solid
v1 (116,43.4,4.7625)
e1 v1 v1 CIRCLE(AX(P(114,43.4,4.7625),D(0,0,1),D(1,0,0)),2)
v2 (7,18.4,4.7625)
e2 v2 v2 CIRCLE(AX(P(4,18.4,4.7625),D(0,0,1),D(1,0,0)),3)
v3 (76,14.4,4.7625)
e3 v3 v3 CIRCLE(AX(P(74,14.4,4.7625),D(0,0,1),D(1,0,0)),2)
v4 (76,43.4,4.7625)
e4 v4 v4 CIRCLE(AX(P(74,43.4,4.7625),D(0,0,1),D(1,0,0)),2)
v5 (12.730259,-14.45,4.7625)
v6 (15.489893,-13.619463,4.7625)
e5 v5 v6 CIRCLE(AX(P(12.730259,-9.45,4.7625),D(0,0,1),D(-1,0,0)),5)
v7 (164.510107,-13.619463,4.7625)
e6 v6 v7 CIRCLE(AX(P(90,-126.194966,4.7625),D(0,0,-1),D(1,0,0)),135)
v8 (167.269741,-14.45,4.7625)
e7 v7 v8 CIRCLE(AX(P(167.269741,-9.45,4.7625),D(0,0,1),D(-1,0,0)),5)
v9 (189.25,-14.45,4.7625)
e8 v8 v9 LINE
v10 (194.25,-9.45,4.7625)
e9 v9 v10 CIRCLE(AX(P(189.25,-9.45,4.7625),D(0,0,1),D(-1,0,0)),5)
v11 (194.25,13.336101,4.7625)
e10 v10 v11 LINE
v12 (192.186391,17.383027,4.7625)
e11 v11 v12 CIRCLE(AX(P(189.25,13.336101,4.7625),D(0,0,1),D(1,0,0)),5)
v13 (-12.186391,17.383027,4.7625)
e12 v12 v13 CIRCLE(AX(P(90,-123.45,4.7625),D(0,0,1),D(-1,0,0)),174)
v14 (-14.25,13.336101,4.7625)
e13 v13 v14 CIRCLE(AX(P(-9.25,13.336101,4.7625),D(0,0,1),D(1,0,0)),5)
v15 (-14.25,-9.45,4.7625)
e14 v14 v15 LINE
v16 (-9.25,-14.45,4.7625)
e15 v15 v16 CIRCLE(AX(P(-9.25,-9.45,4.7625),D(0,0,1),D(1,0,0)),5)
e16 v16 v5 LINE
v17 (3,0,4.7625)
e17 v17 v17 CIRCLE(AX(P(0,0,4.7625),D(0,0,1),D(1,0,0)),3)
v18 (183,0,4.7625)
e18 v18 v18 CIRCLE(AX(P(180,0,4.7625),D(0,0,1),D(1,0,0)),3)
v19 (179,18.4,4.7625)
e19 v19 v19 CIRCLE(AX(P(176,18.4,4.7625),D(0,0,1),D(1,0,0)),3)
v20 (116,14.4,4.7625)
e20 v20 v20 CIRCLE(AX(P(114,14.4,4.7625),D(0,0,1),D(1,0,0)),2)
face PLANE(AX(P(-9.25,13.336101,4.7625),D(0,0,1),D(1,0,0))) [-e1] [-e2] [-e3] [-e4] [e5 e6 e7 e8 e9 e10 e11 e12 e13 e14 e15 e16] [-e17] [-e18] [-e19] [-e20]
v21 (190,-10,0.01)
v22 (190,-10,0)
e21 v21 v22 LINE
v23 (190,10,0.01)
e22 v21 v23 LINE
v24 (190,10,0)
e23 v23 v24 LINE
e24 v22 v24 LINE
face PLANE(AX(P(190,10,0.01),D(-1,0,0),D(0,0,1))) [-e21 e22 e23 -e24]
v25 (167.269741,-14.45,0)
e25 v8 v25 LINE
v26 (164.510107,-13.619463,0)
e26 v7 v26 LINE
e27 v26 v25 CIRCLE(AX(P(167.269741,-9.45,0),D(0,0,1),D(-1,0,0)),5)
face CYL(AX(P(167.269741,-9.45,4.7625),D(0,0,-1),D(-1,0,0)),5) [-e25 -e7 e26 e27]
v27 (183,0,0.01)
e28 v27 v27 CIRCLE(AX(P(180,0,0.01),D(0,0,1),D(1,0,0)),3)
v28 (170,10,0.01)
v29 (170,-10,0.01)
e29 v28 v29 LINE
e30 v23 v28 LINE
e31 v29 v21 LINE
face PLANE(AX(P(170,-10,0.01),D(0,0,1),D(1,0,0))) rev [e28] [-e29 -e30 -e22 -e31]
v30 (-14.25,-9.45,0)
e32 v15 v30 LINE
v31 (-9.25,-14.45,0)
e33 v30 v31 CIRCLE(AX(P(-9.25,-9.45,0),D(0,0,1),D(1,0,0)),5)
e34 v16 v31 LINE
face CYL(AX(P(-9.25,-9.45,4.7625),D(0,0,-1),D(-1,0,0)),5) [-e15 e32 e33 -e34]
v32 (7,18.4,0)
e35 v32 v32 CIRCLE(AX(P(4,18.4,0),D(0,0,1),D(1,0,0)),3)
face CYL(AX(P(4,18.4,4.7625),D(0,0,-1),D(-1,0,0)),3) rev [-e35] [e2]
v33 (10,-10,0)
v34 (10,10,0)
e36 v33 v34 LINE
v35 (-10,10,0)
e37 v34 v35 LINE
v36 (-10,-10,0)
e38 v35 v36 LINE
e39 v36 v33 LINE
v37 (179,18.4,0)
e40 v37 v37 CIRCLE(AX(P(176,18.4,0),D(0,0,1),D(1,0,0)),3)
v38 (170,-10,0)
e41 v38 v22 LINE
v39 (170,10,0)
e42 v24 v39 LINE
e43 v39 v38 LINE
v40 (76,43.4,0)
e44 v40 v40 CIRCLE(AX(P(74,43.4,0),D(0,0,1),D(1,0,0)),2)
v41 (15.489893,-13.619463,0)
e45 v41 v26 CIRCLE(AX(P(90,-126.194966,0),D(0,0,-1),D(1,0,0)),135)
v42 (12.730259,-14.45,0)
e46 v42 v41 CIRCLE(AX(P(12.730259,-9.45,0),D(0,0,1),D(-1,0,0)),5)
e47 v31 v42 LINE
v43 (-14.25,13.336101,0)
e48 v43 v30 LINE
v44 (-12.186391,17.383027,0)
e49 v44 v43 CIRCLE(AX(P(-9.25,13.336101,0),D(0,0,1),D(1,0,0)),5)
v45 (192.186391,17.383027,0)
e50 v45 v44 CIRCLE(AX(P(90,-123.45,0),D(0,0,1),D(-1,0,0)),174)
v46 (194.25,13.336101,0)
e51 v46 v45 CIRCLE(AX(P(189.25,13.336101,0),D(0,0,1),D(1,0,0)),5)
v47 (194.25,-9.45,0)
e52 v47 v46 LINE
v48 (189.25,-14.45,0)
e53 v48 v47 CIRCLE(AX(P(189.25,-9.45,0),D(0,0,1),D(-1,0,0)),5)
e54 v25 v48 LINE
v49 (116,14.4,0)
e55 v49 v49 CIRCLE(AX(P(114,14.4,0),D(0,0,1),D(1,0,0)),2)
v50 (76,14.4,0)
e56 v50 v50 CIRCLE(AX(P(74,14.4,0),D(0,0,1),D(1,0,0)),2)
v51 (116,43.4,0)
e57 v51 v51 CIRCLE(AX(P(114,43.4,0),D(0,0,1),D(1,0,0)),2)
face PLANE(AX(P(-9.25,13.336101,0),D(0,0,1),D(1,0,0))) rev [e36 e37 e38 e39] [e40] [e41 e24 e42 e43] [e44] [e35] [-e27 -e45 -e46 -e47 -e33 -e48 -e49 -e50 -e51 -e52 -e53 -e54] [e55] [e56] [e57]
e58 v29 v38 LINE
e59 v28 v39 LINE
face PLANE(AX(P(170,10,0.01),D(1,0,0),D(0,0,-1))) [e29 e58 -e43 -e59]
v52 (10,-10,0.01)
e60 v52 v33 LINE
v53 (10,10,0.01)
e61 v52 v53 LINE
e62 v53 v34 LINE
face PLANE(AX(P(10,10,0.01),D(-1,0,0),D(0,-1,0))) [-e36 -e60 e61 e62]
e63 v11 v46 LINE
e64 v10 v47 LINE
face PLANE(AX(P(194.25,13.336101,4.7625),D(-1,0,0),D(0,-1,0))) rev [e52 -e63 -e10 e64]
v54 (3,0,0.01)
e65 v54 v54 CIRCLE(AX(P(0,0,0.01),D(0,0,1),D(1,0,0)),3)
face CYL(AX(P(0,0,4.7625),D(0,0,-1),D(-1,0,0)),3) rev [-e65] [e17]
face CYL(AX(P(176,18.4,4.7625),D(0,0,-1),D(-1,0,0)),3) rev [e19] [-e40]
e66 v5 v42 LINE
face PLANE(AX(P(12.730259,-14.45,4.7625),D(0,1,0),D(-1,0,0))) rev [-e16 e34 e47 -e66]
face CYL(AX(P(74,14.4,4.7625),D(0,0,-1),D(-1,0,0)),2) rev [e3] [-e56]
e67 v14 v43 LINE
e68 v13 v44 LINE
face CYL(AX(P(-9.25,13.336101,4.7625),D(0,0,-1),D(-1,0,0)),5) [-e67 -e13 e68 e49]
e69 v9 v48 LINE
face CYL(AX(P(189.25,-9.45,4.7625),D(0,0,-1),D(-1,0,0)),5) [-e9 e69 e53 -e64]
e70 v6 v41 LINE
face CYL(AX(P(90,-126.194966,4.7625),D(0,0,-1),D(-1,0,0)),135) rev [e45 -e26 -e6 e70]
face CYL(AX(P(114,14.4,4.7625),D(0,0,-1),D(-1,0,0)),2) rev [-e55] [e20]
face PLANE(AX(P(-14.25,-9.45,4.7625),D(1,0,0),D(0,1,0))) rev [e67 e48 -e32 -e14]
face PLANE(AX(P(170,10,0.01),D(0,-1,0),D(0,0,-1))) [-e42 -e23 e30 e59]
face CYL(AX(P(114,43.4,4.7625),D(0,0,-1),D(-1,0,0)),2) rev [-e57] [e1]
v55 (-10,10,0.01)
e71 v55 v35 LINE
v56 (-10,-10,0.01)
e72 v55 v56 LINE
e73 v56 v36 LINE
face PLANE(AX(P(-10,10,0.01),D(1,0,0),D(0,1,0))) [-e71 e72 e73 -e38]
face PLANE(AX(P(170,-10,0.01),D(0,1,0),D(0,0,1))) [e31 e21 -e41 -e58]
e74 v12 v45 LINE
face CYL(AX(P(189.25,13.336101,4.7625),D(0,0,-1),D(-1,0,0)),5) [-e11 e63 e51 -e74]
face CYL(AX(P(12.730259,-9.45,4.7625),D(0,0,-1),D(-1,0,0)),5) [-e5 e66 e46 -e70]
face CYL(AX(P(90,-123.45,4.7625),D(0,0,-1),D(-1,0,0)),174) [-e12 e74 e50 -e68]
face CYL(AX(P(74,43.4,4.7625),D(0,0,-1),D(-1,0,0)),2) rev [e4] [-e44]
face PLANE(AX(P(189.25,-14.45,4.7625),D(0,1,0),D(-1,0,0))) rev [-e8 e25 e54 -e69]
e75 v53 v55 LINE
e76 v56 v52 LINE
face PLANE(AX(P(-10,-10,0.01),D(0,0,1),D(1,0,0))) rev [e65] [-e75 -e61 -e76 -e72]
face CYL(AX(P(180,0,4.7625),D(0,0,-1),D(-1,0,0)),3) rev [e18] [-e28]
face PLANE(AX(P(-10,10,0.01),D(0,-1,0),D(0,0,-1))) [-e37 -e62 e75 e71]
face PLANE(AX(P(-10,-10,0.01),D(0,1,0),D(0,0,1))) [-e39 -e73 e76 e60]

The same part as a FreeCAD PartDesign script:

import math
import FreeCAD as App
import Part
import Sketcher
Q = App.Units.Quantity

doc = App.newDocument("Part")
body = doc.addObject("PartDesign::Body", "Body")

# Sketch on XY plane
sketch1 = doc.addObject("Sketcher::SketchObject", "Sketch")
body.addObject(sketch1)
sketch1.AttachmentSupport = (doc.XY_Plane, [""])
sketch1.MapMode = "FlatFace"
sketch1.addGeometry(Part.LineSegment(App.Vector(-14.2, 13.3, 0), App.Vector(-14.2, -9.4, 0)), False)
sketch1.addGeometry(Part.ArcOfCircle(Part.Circle(App.Vector(-9.2, -9.4, 0), App.Vector(0, 0, 1), 5), math.radians(180), math.radians(270)), False)
sketch1.addGeometry(Part.LineSegment(App.Vector(-9.2, -14.4, 0), App.Vector(12.7, -14.4, 0)), False)
sketch1.addGeometry(Part.ArcOfCircle(Part.Circle(App.Vector(12.7, -9.5, 0), App.Vector(0, 0, 1), 5), math.radians(-90), math.radians(-57)), False)
sketch1.addGeometry(Part.ArcOfCircle(Part.Circle(App.Vector(90, -126.2, 0), App.Vector(0, 0, 1), 135), math.radians(57), math.radians(123)), False)
sketch1.addGeometry(Part.ArcOfCircle(Part.Circle(App.Vector(167.3, -9.5, 0), App.Vector(0, 0, 1), 5), math.radians(-123), math.radians(-90)), False)
sketch1.addGeometry(Part.LineSegment(App.Vector(167.3, -14.4, 0), App.Vector(189.2, -14.4, 0)), False)
sketch1.addGeometry(Part.ArcOfCircle(Part.Circle(App.Vector(189.2, -9.4, 0), App.Vector(0, 0, 1), 5), math.radians(-90), math.radians(0)), False)
sketch1.addGeometry(Part.LineSegment(App.Vector(194.2, -9.4, 0), App.Vector(194.2, 13.3, 0)), False)
sketch1.addGeometry(Part.ArcOfCircle(Part.Circle(App.Vector(189.2, 13.3, 0), App.Vector(0, 0, 1), 5), math.radians(0), math.radians(54)), False)
sketch1.addGeometry(Part.ArcOfCircle(Part.Circle(App.Vector(90, -123.5, 0), App.Vector(0, 0, 1), 174), math.radians(54), math.radians(126)), False)
sketch1.addGeometry(Part.ArcOfCircle(Part.Circle(App.Vector(-9.2, 13.3, 0), App.Vector(0, 0, 1), 5), math.radians(126), math.radians(180)), False)
sketch1.addGeometry(Part.Circle(App.Vector(180, 0, 0), App.Vector(0, 0, 1), 3), False)
sketch1.addGeometry(Part.Circle(App.Vector(176, 18.4, 0), App.Vector(0, 0, 1), 3), False)
sketch1.addGeometry(Part.Circle(App.Vector(114, 14.4, 0), App.Vector(0, 0, 1), 2), False)
sketch1.addGeometry(Part.Circle(App.Vector(0, 0, 0), App.Vector(0, 0, 1), 3), False)
sketch1.addGeometry(Part.Circle(App.Vector(74, 14.4, 0), App.Vector(0, 0, 1), 2), False)
sketch1.addGeometry(Part.Circle(App.Vector(4, 18.4, 0), App.Vector(0, 0, 1), 3), False)
sketch1.addGeometry(Part.Circle(App.Vector(114, 43.4, 0), App.Vector(0, 0, 1), 2), False)
sketch1.addGeometry(Part.Circle(App.Vector(74, 43.4, 0), App.Vector(0, 0, 1), 2), False)
sketch1.addConstraint(Sketcher.Constraint("Tangent", 0, 2, 1, 1))
sketch1.addConstraint(Sketcher.Constraint("Tangent", 1, 2, 2, 1))
sketch1.addConstraint(Sketcher.Constraint("Tangent", 2, 2, 3, 1))
sketch1.addConstraint(Sketcher.Constraint("Tangent", 3, 2, 4, 2))
sketch1.addConstraint(Sketcher.Constraint("Tangent", 4, 1, 5, 1))
sketch1.addConstraint(Sketcher.Constraint("Tangent", 5, 2, 6, 1))
sketch1.addConstraint(Sketcher.Constraint("Tangent", 6, 2, 7, 1))
sketch1.addConstraint(Sketcher.Constraint("Tangent", 7, 2, 8, 1))
sketch1.addConstraint(Sketcher.Constraint("Tangent", 8, 2, 9, 1))
sketch1.addConstraint(Sketcher.Constraint("Tangent", 9, 2, 10, 1))
sketch1.addConstraint(Sketcher.Constraint("Tangent", 10, 2, 11, 1))
sketch1.addConstraint(Sketcher.Constraint("Tangent", 11, 2, 0, 1))
sketch1.addConstraint(Sketcher.Constraint("Vertical", 0))
sketch1.addConstraint(Sketcher.Constraint("Horizontal", 2))
sketch1.addConstraint(Sketcher.Constraint("Horizontal", 6))
sketch1.addConstraint(Sketcher.Constraint("Vertical", 8))
sketch1.addConstraint(Sketcher.Constraint("Coincident", 15, 3, -1, 1))
sketch1.addConstraint(Sketcher.Constraint("Equal", 1, 3))
sketch1.addConstraint(Sketcher.Constraint("Equal", 3, 5))
sketch1.addConstraint(Sketcher.Constraint("Equal", 5, 7))
sketch1.addConstraint(Sketcher.Constraint("Equal", 7, 9))
sketch1.addConstraint(Sketcher.Constraint("Equal", 9, 11))
sketch1.addConstraint(Sketcher.Constraint("Equal", 12, 13))
sketch1.addConstraint(Sketcher.Constraint("Equal", 13, 15))
sketch1.addConstraint(Sketcher.Constraint("Equal", 14, 16))
sketch1.addConstraint(Sketcher.Constraint("Equal", 15, 17))
sketch1.addConstraint(Sketcher.Constraint("Equal", 16, 18))
sketch1.addConstraint(Sketcher.Constraint("Equal", 18, 19))
sketch1.addConstraint(Sketcher.Constraint("PointOnObject", 12, 3, -1))
sketch1.addConstraint(Sketcher.Constraint("Horizontal", 3, 3, 5, 3))
sketch1.addConstraint(Sketcher.Constraint("Horizontal", 9, 3, 11, 3))
sketch1.addConstraint(Sketcher.Constraint("Horizontal", 14, 3, 16, 3))
sketch1.addConstraint(Sketcher.Constraint("Horizontal", 13, 3, 17, 3))
sketch1.addConstraint(Sketcher.Constraint("Horizontal", 18, 3, 19, 3))
sketch1.addConstraint(Sketcher.Constraint("Vertical", 4, 3, 10, 3))
sketch1.addConstraint(Sketcher.Constraint("Vertical", 14, 3, 18, 3))
sketch1.addConstraint(Sketcher.Constraint("Vertical", 16, 3, 19, 3))
sketch1.addConstraint(Sketcher.Constraint("Diameter", 12, Q("6 mm")))
sketch1.addConstraint(Sketcher.Constraint("Diameter", 14, Q("4 mm")))
sketch1.addConstraint(Sketcher.Constraint("Radius", 1, Q("5 mm")))
sketch1.addConstraint(Sketcher.Constraint("Radius", 4, Q("135 mm")))
sketch1.addConstraint(Sketcher.Constraint("Radius", 10, Q("174 mm")))
sketch1.addConstraint(Sketcher.Constraint("DistanceX", -1, 1, 4, 3, Q("90 mm")))
sketch1.addConstraint(Sketcher.Constraint("DistanceX", -1, 1, 12, 3, Q("180 mm")))
sketch1.addConstraint(Sketcher.Constraint("DistanceX", -1, 1, 13, 3, Q("176 mm")))
sketch1.addConstraint(Sketcher.Constraint("DistanceX", -1, 1, 14, 3, Q("114 mm")))
sketch1.addConstraint(Sketcher.Constraint("DistanceX", -1, 1, 16, 3, Q("74 mm")))
sketch1.addConstraint(Sketcher.Constraint("DistanceX", -1, 1, 17, 3, Q("4 mm")))
sketch1.addConstraint(Sketcher.Constraint("DistanceY", 10, 3, 3, 3, Q("114 mm")))
sketch1.addConstraint(Sketcher.Constraint("DistanceY", 14, 3, 13, 3, Q("4 mm")))
sketch1.addConstraint(Sketcher.Constraint("DistanceY", 14, 3, 18, 3, Q("29 mm")))
sketch1.addConstraint(Sketcher.Constraint("DistanceY", -1, 1, 13, 3, Q("18.4 mm")))
sketch1.addConstraint(Sketcher.Constraint("DistanceX", 1, 3, 7, 3, Q("198.5 mm")))
sketch1.addConstraint(Sketcher.Constraint("DistanceY", 1, 3, -1, 1, Q("9.45 mm")))
sketch1.addConstraint(Sketcher.Constraint("DistanceX", 2, 1, 2, 2, Q("21.980259 mm")))
pad1 = doc.addObject("PartDesign::Pad", "Pad")
body.addObject(pad1)
pad1.Profile = sketch1
pad1.Length = 4.7625

# Sketch on XY plane
sketch2 = doc.addObject("Sketcher::SketchObject", "Sketch001")
body.addObject(sketch2)
sketch2.AttachmentSupport = (doc.XY_Plane, [""])
sketch2.MapMode = "FlatFace"
sketch2.addGeometry(Part.LineSegment(App.Vector(-10, 10, 0), App.Vector(-10, -10, 0)), False)
sketch2.addGeometry(Part.LineSegment(App.Vector(-10, -10, 0), App.Vector(10, -10, 0)), False)
sketch2.addGeometry(Part.LineSegment(App.Vector(10, -10, 0), App.Vector(10, 10, 0)), False)
sketch2.addGeometry(Part.LineSegment(App.Vector(10, 10, 0), App.Vector(-10, 10, 0)), False)
sketch2.addGeometry(Part.LineSegment(App.Vector(170, 10, 0), App.Vector(170, -10, 0)), False)
sketch2.addGeometry(Part.LineSegment(App.Vector(170, -10, 0), App.Vector(190, -10, 0)), False)
sketch2.addGeometry(Part.LineSegment(App.Vector(190, -10, 0), App.Vector(190, 10, 0)), False)
sketch2.addGeometry(Part.LineSegment(App.Vector(190, 10, 0), App.Vector(170, 10, 0)), False)
sketch2.addConstraint(Sketcher.Constraint("Coincident", 0, 2, 1, 1))
sketch2.addConstraint(Sketcher.Constraint("Coincident", 1, 2, 2, 1))
sketch2.addConstraint(Sketcher.Constraint("Coincident", 2, 2, 3, 1))
sketch2.addConstraint(Sketcher.Constraint("Coincident", 3, 2, 0, 1))
sketch2.addConstraint(Sketcher.Constraint("Coincident", 4, 2, 5, 1))
sketch2.addConstraint(Sketcher.Constraint("Coincident", 5, 2, 6, 1))
sketch2.addConstraint(Sketcher.Constraint("Coincident", 6, 2, 7, 1))
sketch2.addConstraint(Sketcher.Constraint("Coincident", 7, 2, 4, 1))
sketch2.addConstraint(Sketcher.Constraint("Vertical", 0))
sketch2.addConstraint(Sketcher.Constraint("Horizontal", 1))
sketch2.addConstraint(Sketcher.Constraint("Vertical", 2))
sketch2.addConstraint(Sketcher.Constraint("Horizontal", 3))
sketch2.addConstraint(Sketcher.Constraint("Vertical", 4))
sketch2.addConstraint(Sketcher.Constraint("Horizontal", 5))
sketch2.addConstraint(Sketcher.Constraint("Vertical", 6))
sketch2.addConstraint(Sketcher.Constraint("Horizontal", 7))
sketch2.addConstraint(Sketcher.Constraint("Symmetric", 0, 2, 2, 2, -1, 1))
sketch2.addConstraint(Sketcher.Constraint("Horizontal", 1, 2, 4, 2))
sketch2.addConstraint(Sketcher.Constraint("Horizontal", 3, 2, 6, 2))
sketch2.addConstraint(Sketcher.Constraint("Equal", 3, 5))
sketch2.addConstraint(Sketcher.Constraint("Equal", 7, 0))
sketch2.addConstraint(Sketcher.Constraint("DistanceX", 1, 1, 1, 2, Q("20 mm")))
sketch2.addConstraint(Sketcher.Constraint("DistanceX", -1, 1, 4, 2, Q("170 mm")))
pocket1 = doc.addObject("PartDesign::Pocket", "Pocket")
body.addObject(pocket1)
pocket1.Profile = sketch2
pocket1.Length = 0.01
pocket1.Reversed = True

doc.recompute()
